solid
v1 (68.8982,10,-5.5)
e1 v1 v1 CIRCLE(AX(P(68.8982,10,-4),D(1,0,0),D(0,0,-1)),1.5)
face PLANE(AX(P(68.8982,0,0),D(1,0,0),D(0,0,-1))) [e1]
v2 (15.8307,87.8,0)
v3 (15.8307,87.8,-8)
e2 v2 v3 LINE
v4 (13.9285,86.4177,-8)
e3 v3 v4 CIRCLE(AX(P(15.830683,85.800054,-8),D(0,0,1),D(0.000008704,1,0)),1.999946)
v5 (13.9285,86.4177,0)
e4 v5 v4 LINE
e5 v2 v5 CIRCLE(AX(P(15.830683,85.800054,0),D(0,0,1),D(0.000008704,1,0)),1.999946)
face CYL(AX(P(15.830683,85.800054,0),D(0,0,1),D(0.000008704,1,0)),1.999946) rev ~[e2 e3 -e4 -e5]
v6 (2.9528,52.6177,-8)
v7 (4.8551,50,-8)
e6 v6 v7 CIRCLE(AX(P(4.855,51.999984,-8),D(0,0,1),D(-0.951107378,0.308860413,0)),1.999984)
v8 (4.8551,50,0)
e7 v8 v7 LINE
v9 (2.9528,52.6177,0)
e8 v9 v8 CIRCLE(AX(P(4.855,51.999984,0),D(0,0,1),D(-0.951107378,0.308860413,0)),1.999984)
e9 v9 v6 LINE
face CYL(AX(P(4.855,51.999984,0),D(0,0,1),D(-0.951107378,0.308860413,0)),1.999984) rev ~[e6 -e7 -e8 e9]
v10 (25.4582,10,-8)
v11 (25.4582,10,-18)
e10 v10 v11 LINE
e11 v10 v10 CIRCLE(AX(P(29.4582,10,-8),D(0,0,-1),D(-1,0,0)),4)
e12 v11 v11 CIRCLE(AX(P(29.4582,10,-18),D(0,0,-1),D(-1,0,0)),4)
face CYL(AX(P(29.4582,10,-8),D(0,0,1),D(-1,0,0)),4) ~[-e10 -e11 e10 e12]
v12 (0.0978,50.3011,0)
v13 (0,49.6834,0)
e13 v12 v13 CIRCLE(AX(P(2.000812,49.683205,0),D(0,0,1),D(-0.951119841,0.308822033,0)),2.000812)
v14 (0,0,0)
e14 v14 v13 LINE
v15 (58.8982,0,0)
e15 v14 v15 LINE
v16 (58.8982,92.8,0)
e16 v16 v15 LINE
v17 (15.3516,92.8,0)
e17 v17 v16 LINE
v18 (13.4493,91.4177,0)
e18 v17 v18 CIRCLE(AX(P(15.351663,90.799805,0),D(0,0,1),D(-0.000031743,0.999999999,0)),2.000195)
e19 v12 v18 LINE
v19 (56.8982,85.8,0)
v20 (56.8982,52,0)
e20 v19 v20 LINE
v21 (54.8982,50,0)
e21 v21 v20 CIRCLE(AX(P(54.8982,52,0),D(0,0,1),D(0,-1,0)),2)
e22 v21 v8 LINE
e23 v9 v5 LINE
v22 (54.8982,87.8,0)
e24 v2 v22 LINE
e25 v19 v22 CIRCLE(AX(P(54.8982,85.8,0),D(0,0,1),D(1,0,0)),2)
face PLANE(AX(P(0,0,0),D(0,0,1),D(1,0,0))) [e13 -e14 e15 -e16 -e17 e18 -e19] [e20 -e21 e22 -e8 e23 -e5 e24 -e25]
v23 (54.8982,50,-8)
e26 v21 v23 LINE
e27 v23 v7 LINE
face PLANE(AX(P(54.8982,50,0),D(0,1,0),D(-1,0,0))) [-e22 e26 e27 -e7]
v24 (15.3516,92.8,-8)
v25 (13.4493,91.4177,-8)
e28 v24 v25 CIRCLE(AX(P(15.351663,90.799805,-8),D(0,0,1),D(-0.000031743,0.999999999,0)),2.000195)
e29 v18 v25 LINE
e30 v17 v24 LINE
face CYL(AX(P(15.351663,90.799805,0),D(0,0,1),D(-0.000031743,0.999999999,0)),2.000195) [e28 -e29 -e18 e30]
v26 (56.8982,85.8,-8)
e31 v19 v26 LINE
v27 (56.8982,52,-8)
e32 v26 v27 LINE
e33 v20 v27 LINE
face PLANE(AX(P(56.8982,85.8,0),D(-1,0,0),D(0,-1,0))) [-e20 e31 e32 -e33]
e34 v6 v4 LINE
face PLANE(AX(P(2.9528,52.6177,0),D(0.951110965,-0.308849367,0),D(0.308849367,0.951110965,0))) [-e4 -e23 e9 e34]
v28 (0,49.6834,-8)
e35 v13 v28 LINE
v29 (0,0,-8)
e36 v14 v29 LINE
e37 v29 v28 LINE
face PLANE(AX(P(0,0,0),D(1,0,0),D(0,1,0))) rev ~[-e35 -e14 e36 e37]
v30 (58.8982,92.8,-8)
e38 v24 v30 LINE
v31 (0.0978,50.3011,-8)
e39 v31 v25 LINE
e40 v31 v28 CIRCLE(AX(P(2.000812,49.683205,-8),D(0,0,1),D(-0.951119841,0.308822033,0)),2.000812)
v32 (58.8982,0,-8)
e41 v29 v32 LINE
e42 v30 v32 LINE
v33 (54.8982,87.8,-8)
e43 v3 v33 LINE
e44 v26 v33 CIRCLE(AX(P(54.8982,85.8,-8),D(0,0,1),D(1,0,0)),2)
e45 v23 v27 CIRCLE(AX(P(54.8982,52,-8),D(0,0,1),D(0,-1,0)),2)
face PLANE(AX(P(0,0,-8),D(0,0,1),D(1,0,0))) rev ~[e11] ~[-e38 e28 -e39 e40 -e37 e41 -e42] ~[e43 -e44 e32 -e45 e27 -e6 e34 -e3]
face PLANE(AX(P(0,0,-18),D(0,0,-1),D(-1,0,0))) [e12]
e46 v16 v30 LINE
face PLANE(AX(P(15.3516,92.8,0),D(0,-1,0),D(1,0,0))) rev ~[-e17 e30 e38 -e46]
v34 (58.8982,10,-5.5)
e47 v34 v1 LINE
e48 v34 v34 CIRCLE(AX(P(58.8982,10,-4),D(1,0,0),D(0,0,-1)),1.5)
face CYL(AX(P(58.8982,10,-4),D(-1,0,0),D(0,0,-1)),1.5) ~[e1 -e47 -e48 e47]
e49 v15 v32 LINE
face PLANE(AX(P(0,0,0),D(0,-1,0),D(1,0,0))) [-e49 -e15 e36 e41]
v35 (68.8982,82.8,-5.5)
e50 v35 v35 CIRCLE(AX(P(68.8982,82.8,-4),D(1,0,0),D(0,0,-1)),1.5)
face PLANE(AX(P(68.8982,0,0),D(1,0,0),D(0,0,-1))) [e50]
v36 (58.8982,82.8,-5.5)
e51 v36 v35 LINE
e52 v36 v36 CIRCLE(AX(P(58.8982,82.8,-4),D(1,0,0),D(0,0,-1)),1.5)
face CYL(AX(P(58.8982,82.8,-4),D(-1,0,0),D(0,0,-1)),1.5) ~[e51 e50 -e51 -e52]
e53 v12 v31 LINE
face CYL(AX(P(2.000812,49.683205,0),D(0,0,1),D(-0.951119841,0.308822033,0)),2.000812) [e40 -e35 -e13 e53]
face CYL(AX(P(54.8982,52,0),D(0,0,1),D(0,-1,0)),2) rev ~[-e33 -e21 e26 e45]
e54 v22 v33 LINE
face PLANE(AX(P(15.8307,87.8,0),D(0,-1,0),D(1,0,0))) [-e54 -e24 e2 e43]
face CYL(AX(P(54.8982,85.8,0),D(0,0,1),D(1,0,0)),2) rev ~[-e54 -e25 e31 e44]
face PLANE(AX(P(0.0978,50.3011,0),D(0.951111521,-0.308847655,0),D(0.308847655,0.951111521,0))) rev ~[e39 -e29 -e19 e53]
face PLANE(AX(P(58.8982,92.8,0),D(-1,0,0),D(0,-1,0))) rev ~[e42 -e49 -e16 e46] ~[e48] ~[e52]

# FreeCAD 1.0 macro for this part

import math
import FreeCAD as App
import Part
import Sketcher
from FreeCAD import Vector
Q = App.Units.Quantity

doc = App.newDocument("Part")
body = doc.addObject("PartDesign::Body", "Body")

# Sketch on XY plane
sketch1 = body.newObject("Sketcher::SketchObject", "Sketch")
sketch1.AttachmentSupport = (doc.getObject("XY_Plane"), [""])
sketch1.MapMode = "FlatFace"
sketch1.addGeometry([
    Part.LineSegment(Vector(0, 49.6834, 0), Vector(0, 0, 0)),  # 0
    Part.LineSegment(Vector(0, 0, 0), Vector(58.8982, 0, 0)),  # 1
    Part.LineSegment(Vector(58.8982, 0, 0), Vector(58.8982, 92.8, 0)),  # 2
    Part.LineSegment(Vector(58.8982, 92.8, 0), Vector(15.3516, 92.8, 0)),  # 3
    Part.ArcOfCircle(Part.Circle(Vector(15.3516, 90.8, 0), Vector(0, 0, 1), 2), math.radians(90), math.radians(162.010755)),  # 4
    Part.LineSegment(Vector(13.4493, 91.4177, 0), Vector(0.0978, 50.3011, 0)),  # 5
    Part.ArcOfCircle(Part.Circle(Vector(2, 49.6834, 0), Vector(0, 0, 1), 1.99998), math.radians(162.00987), math.radians(180)),  # 6
    Part.ArcOfCircle(Part.Circle(Vector(4.8551, 52, 0), Vector(0, 0, 1), 2.000075), math.radians(162.010755), math.radians(270)),  # 7
    Part.LineSegment(Vector(2.9528, 52.6177, 0), Vector(13.9285, 86.4177, 0)),  # 8
    Part.ArcOfCircle(Part.Circle(Vector(15.8307, 85.8, 0), Vector(0, 0, 1), 2), math.radians(90), math.radians(162.00987)),  # 9
    Part.LineSegment(Vector(15.8307, 87.8, 0), Vector(54.8982, 87.8, 0)),  # 10
    Part.ArcOfCircle(Part.Circle(Vector(54.8982, 85.8, 0), Vector(0, 0, 1), 2), math.radians(0), math.radians(90)),  # 11
    Part.LineSegment(Vector(56.8982, 85.8, 0), Vector(56.8982, 52, 0)),  # 12
    Part.ArcOfCircle(Part.Circle(Vector(54.8982, 52, 0), Vector(0, 0, 1), 2), math.radians(-90), math.radians(0)),  # 13
    Part.LineSegment(Vector(54.8982, 50, 0), Vector(4.8551, 50, 0)),  # 14
], False)
sketch1.addConstraint([
    Sketcher.Constraint("Coincident", 0, 2, 1, 1),
    Sketcher.Constraint("Coincident", 1, 2, 2, 1),
    Sketcher.Constraint("Coincident", 2, 2, 3, 1),
    Sketcher.Constraint("Tangent", 3, 2, 4, 1),
    Sketcher.Constraint("Tangent", 4, 2, 5, 1),
    Sketcher.Constraint("Tangent", 5, 2, 6, 1),
    Sketcher.Constraint("Tangent", 6, 2, 0, 1),
    Sketcher.Constraint("Tangent", 7, 1, 8, 1),
    Sketcher.Constraint("Tangent", 8, 2, 9, 2),
    Sketcher.Constraint("Tangent", 9, 1, 10, 1),
    Sketcher.Constraint("Tangent", 10, 2, 11, 2),
    Sketcher.Constraint("Tangent", 11, 1, 12, 1),
    Sketcher.Constraint("Tangent", 12, 2, 13, 2),
    Sketcher.Constraint("Tangent", 13, 1, 14, 1),
    Sketcher.Constraint("Tangent", 14, 2, 7, 2),
    Sketcher.Constraint("Vertical", 0),
    Sketcher.Constraint("Horizontal", 1),
    Sketcher.Constraint("Vertical", 2),
    Sketcher.Constraint("Horizontal", 3),
    Sketcher.Constraint("Horizontal", 10),
    Sketcher.Constraint("Vertical", 12),
    Sketcher.Constraint("Horizontal", 14),
    Sketcher.Constraint("Coincident", 0, 2, -1, 1),
    Sketcher.Constraint("Equal", 4, 6),
    Sketcher.Constraint("Equal", 6, 7),
    Sketcher.Constraint("Equal", 7, 9),
    Sketcher.Constraint("Equal", 9, 11),
    Sketcher.Constraint("Equal", 11, 13),
    Sketcher.Constraint("Parallel", 5, 8),
    Sketcher.Constraint("Radius", 4, Q("2 mm")),
    Sketcher.Constraint("DistanceY", 2, 1, 2, 2, Q("92.8 mm")),
    Sketcher.Constraint("DistanceY", -1, 1, 13, 1, Q("50 mm")),
    Sketcher.Constraint("DistanceY", 9, 3, 4, 3, Q("5 mm")),
    Sketcher.Constraint("DistanceX", 11, 1, 2, 2, Q("2 mm")),
    Sketcher.Constraint("DistanceX", -1, 1, 4, 2, Q("13.4494 mm")),
    Sketcher.Constraint("Angle", 5, Q("-107.9898 deg")),
    Sketcher.Constraint("DistanceX", 14, 2, 14, 1, Q("50.043 mm")),
    Sketcher.Constraint("DistanceX", 1, 1, 1, 2, Q("58.8982 mm")),
])
pad1 = body.newObject("PartDesign::Pad", "Pad")
pad1.Profile = sketch1
pad1.Length = 8
pad1.Reversed = True

# Sketch on YZ plane
sketch2 = body.newObject("Sketcher::SketchObject", "Sketch001")
sketch2.AttachmentSupport = (doc.getObject("YZ_Plane"), [""])
sketch2.MapMode = "FlatFace"
sketch2.AttachmentOffset = App.Placement(Vector(0, 0, 58.8982), App.Rotation())
sketch2.addGeometry([
    Part.Circle(Vector(10, -4, 0), Vector(0, 0, 1), 1.5),
    Part.Circle(Vector(82.8, -4, 0), Vector(0, 0, 1), 1.5),
], False)
sketch2.addConstraint([
    Sketcher.Constraint("Equal", 0, 1),
    Sketcher.Constraint("Horizontal", 0, 3, 1, 3),
    Sketcher.Constraint("Diameter", 0, Q("3 mm")),
    Sketcher.Constraint("DistanceX", -1, 1, 0, 3, Q("10 mm")),
    Sketcher.Constraint("DistanceY", 0, 3, -1, 1, Q("4 mm")),
    Sketcher.Constraint("DistanceX", -1, 1, 1, 3, Q("82.8 mm")),
])
pad2 = body.newObject("PartDesign::Pad", "Pad001")
pad2.Profile = sketch2
pad2.Length = 10

# Sketch on XY plane
sketch3 = body.newObject("Sketcher::SketchObject", "Sketch002")
sketch3.AttachmentSupport = (doc.getObject("XY_Plane"), [""])
sketch3.MapMode = "FlatFace"
sketch3.AttachmentOffset = App.Placement(Vector(0, 0, -8), App.Rotation())
sketch3.addGeometry(Part.Circle(Vector(29.4582, 10, 0), Vector(0, 0, 1), 4), False)
sketch3.addConstraint([
    Sketcher.Constraint("Diameter", 0, Q("8 mm")),
    Sketcher.Constraint("DistanceY", -1, 1, 0, 3, Q("10 mm")),
    Sketcher.Constraint("DistanceX", -1, 1, 0, 3, Q("29.4582 mm")),
])
pad3 = body.newObject("PartDesign::Pad", "Pad002")
pad3.Profile = sketch3
pad3.Length = 10
pad3.Reversed = True

doc.recompute()
